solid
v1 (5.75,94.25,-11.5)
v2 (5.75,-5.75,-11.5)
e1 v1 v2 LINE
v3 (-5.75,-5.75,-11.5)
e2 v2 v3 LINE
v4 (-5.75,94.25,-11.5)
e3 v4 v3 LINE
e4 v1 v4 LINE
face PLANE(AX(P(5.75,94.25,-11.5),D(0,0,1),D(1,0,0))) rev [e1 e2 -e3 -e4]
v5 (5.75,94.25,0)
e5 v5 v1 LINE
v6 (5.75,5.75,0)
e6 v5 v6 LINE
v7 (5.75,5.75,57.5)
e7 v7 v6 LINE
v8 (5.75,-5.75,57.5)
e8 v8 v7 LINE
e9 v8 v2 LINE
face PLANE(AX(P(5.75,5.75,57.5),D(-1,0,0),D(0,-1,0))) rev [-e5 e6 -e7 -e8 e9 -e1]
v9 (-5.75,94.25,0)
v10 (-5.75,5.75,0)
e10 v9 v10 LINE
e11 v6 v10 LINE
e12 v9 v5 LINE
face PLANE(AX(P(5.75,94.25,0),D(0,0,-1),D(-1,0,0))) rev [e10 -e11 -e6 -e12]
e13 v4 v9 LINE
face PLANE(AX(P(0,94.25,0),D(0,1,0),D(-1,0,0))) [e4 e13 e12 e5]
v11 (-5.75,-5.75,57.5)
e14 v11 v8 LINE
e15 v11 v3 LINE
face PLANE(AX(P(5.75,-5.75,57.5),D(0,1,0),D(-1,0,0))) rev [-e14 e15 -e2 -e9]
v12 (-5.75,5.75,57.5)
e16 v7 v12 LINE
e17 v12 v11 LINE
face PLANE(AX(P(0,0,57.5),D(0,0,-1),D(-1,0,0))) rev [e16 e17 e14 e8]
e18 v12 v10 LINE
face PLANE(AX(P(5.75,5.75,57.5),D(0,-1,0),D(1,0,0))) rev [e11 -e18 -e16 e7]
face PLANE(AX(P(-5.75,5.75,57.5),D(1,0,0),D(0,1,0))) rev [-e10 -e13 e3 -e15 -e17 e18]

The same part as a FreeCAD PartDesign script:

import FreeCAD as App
import Part
import Sketcher

V = App.Vector

doc = App.newDocument("Part")
params = doc.addObject("Spreadsheet::Sheet", "Params")
for row, (alias, value) in enumerate([
    ("sketch1_width", "11.5 mm"),
    ("pad1_length", "57.5 mm"),
    ("sketch2_width", "11.5 mm"),
    ("pad2_length", "100 mm"),
], start=1):
    params.set(f"A{row}", alias)
    params.set(f"B{row}", "=" + value)
    params.setAlias(f"B{row}", alias)

body = doc.addObject("PartDesign::Body", "Body")

# Sketch on XY plane
sketch1 = body.newObject("Sketcher::SketchObject", "Sketch")
sketch1.AttachmentSupport = (doc.getObject("XY_Plane"), [""])
sketch1.MapMode = "FlatFace"
sketch1.addGeometry(Part.LineSegment(V(-5.75, 5.75, 0), V(-5.75, -5.75, 0)), False)
sketch1.addGeometry(Part.LineSegment(V(-5.75, -5.75, 0), V(5.75, -5.75, 0)), False)
sketch1.addGeometry(Part.LineSegment(V(5.75, -5.75, 0), V(5.75, 5.75, 0)), False)
sketch1.addGeometry(Part.LineSegment(V(5.75, 5.75, 0), V(-5.75, 5.75, 0)), False)
sketch1.addConstraint(Sketcher.Constraint("Coincident", 0, 2, 1, 1))
sketch1.addConstraint(Sketcher.Constraint("Coincident", 1, 2, 2, 1))
sketch1.addConstraint(Sketcher.Constraint("Coincident", 2, 2, 3, 1))
sketch1.addConstraint(Sketcher.Constraint("Coincident", 3, 2, 0, 1))
sketch1.addConstraint(Sketcher.Constraint("Vertical", 0))
sketch1.addConstraint(Sketcher.Constraint("Horizontal", 1))
sketch1.addConstraint(Sketcher.Constraint("Vertical", 2))
sketch1.addConstraint(Sketcher.Constraint("Horizontal", 3))
sketch1.addConstraint(Sketcher.Constraint("Symmetric", 0, 2, 2, 2, -1, 1))
sketch1.addConstraint(Sketcher.Constraint("Equal", 3, 0))
sketch1.addConstraint(Sketcher.Constraint("DistanceX", 1, 1, 1, 2, 11.5))
sketch1.setExpression("Constraints[10]", "Params.sketch1_width")
pad1 = body.newObject("PartDesign::Pad", "Pad")
pad1.Profile = sketch1
pad1.setExpression("Length", "Params.pad1_length")

# Sketch on XZ plane
sketch2 = body.newObject("Sketcher::SketchObject", "Sketch001")
sketch2.AttachmentSupport = (doc.getObject("XZ_Plane"), [""])
sketch2.MapMode = "FlatFace"
sketch2.AttachmentOffset = App.Placement(V(0, 0, 5.75), App.Rotation())
sketch2.addGeometry(Part.LineSegment(V(-5.75, -11.5, 0), V(-5.75, 0, 0)), False)
sketch2.addGeometry(Part.LineSegment(V(-5.75, 0, 0), V(5.75, 0, 0)), False)
sketch2.addGeometry(Part.LineSegment(V(5.75, 0, 0), V(5.75, -11.5, 0)), False)
sketch2.addGeometry(Part.LineSegment(V(5.75, -11.5, 0), V(-5.75, -11.5, 0)), False)
sketch2.addConstraint(Sketcher.Constraint("Coincident", 0, 2, 1, 1))
sketch2.addConstraint(Sketcher.Constraint("Coincident", 1, 2, 2, 1))
sketch2.addConstraint(Sketcher.Constraint("Coincident", 2, 2, 3, 1))
sketch2.addConstraint(Sketcher.Constraint("Coincident", 3, 2, 0, 1))
sketch2.addConstraint(Sketcher.Constraint("Vertical", 0))
sketch2.addConstraint(Sketcher.Constraint("Horizontal", 1))
sketch2.addConstraint(Sketcher.Constraint("Vertical", 2))
sketch2.addConstraint(Sketcher.Constraint("Horizontal", 3))
sketch2.addConstraint(Sketcher.Constraint("Symmetric", 0, 2, 1, 2, -1, 1))
sketch2.addConstraint(Sketcher.Constraint("Equal", 3, 0))
sketch2.addConstraint(Sketcher.Constraint("DistanceX", 1, 1, 1, 2, 11.5))
sketch2.setExpression("Constraints[10]", "Params.sketch2_width")
pad2 = body.newObject("PartDesign::Pad", "Pad001")
pad2.Profile = sketch2
pad2.setExpression("Length", "Params.pad2_length")
pad2.Reversed = True

doc.recompute()
